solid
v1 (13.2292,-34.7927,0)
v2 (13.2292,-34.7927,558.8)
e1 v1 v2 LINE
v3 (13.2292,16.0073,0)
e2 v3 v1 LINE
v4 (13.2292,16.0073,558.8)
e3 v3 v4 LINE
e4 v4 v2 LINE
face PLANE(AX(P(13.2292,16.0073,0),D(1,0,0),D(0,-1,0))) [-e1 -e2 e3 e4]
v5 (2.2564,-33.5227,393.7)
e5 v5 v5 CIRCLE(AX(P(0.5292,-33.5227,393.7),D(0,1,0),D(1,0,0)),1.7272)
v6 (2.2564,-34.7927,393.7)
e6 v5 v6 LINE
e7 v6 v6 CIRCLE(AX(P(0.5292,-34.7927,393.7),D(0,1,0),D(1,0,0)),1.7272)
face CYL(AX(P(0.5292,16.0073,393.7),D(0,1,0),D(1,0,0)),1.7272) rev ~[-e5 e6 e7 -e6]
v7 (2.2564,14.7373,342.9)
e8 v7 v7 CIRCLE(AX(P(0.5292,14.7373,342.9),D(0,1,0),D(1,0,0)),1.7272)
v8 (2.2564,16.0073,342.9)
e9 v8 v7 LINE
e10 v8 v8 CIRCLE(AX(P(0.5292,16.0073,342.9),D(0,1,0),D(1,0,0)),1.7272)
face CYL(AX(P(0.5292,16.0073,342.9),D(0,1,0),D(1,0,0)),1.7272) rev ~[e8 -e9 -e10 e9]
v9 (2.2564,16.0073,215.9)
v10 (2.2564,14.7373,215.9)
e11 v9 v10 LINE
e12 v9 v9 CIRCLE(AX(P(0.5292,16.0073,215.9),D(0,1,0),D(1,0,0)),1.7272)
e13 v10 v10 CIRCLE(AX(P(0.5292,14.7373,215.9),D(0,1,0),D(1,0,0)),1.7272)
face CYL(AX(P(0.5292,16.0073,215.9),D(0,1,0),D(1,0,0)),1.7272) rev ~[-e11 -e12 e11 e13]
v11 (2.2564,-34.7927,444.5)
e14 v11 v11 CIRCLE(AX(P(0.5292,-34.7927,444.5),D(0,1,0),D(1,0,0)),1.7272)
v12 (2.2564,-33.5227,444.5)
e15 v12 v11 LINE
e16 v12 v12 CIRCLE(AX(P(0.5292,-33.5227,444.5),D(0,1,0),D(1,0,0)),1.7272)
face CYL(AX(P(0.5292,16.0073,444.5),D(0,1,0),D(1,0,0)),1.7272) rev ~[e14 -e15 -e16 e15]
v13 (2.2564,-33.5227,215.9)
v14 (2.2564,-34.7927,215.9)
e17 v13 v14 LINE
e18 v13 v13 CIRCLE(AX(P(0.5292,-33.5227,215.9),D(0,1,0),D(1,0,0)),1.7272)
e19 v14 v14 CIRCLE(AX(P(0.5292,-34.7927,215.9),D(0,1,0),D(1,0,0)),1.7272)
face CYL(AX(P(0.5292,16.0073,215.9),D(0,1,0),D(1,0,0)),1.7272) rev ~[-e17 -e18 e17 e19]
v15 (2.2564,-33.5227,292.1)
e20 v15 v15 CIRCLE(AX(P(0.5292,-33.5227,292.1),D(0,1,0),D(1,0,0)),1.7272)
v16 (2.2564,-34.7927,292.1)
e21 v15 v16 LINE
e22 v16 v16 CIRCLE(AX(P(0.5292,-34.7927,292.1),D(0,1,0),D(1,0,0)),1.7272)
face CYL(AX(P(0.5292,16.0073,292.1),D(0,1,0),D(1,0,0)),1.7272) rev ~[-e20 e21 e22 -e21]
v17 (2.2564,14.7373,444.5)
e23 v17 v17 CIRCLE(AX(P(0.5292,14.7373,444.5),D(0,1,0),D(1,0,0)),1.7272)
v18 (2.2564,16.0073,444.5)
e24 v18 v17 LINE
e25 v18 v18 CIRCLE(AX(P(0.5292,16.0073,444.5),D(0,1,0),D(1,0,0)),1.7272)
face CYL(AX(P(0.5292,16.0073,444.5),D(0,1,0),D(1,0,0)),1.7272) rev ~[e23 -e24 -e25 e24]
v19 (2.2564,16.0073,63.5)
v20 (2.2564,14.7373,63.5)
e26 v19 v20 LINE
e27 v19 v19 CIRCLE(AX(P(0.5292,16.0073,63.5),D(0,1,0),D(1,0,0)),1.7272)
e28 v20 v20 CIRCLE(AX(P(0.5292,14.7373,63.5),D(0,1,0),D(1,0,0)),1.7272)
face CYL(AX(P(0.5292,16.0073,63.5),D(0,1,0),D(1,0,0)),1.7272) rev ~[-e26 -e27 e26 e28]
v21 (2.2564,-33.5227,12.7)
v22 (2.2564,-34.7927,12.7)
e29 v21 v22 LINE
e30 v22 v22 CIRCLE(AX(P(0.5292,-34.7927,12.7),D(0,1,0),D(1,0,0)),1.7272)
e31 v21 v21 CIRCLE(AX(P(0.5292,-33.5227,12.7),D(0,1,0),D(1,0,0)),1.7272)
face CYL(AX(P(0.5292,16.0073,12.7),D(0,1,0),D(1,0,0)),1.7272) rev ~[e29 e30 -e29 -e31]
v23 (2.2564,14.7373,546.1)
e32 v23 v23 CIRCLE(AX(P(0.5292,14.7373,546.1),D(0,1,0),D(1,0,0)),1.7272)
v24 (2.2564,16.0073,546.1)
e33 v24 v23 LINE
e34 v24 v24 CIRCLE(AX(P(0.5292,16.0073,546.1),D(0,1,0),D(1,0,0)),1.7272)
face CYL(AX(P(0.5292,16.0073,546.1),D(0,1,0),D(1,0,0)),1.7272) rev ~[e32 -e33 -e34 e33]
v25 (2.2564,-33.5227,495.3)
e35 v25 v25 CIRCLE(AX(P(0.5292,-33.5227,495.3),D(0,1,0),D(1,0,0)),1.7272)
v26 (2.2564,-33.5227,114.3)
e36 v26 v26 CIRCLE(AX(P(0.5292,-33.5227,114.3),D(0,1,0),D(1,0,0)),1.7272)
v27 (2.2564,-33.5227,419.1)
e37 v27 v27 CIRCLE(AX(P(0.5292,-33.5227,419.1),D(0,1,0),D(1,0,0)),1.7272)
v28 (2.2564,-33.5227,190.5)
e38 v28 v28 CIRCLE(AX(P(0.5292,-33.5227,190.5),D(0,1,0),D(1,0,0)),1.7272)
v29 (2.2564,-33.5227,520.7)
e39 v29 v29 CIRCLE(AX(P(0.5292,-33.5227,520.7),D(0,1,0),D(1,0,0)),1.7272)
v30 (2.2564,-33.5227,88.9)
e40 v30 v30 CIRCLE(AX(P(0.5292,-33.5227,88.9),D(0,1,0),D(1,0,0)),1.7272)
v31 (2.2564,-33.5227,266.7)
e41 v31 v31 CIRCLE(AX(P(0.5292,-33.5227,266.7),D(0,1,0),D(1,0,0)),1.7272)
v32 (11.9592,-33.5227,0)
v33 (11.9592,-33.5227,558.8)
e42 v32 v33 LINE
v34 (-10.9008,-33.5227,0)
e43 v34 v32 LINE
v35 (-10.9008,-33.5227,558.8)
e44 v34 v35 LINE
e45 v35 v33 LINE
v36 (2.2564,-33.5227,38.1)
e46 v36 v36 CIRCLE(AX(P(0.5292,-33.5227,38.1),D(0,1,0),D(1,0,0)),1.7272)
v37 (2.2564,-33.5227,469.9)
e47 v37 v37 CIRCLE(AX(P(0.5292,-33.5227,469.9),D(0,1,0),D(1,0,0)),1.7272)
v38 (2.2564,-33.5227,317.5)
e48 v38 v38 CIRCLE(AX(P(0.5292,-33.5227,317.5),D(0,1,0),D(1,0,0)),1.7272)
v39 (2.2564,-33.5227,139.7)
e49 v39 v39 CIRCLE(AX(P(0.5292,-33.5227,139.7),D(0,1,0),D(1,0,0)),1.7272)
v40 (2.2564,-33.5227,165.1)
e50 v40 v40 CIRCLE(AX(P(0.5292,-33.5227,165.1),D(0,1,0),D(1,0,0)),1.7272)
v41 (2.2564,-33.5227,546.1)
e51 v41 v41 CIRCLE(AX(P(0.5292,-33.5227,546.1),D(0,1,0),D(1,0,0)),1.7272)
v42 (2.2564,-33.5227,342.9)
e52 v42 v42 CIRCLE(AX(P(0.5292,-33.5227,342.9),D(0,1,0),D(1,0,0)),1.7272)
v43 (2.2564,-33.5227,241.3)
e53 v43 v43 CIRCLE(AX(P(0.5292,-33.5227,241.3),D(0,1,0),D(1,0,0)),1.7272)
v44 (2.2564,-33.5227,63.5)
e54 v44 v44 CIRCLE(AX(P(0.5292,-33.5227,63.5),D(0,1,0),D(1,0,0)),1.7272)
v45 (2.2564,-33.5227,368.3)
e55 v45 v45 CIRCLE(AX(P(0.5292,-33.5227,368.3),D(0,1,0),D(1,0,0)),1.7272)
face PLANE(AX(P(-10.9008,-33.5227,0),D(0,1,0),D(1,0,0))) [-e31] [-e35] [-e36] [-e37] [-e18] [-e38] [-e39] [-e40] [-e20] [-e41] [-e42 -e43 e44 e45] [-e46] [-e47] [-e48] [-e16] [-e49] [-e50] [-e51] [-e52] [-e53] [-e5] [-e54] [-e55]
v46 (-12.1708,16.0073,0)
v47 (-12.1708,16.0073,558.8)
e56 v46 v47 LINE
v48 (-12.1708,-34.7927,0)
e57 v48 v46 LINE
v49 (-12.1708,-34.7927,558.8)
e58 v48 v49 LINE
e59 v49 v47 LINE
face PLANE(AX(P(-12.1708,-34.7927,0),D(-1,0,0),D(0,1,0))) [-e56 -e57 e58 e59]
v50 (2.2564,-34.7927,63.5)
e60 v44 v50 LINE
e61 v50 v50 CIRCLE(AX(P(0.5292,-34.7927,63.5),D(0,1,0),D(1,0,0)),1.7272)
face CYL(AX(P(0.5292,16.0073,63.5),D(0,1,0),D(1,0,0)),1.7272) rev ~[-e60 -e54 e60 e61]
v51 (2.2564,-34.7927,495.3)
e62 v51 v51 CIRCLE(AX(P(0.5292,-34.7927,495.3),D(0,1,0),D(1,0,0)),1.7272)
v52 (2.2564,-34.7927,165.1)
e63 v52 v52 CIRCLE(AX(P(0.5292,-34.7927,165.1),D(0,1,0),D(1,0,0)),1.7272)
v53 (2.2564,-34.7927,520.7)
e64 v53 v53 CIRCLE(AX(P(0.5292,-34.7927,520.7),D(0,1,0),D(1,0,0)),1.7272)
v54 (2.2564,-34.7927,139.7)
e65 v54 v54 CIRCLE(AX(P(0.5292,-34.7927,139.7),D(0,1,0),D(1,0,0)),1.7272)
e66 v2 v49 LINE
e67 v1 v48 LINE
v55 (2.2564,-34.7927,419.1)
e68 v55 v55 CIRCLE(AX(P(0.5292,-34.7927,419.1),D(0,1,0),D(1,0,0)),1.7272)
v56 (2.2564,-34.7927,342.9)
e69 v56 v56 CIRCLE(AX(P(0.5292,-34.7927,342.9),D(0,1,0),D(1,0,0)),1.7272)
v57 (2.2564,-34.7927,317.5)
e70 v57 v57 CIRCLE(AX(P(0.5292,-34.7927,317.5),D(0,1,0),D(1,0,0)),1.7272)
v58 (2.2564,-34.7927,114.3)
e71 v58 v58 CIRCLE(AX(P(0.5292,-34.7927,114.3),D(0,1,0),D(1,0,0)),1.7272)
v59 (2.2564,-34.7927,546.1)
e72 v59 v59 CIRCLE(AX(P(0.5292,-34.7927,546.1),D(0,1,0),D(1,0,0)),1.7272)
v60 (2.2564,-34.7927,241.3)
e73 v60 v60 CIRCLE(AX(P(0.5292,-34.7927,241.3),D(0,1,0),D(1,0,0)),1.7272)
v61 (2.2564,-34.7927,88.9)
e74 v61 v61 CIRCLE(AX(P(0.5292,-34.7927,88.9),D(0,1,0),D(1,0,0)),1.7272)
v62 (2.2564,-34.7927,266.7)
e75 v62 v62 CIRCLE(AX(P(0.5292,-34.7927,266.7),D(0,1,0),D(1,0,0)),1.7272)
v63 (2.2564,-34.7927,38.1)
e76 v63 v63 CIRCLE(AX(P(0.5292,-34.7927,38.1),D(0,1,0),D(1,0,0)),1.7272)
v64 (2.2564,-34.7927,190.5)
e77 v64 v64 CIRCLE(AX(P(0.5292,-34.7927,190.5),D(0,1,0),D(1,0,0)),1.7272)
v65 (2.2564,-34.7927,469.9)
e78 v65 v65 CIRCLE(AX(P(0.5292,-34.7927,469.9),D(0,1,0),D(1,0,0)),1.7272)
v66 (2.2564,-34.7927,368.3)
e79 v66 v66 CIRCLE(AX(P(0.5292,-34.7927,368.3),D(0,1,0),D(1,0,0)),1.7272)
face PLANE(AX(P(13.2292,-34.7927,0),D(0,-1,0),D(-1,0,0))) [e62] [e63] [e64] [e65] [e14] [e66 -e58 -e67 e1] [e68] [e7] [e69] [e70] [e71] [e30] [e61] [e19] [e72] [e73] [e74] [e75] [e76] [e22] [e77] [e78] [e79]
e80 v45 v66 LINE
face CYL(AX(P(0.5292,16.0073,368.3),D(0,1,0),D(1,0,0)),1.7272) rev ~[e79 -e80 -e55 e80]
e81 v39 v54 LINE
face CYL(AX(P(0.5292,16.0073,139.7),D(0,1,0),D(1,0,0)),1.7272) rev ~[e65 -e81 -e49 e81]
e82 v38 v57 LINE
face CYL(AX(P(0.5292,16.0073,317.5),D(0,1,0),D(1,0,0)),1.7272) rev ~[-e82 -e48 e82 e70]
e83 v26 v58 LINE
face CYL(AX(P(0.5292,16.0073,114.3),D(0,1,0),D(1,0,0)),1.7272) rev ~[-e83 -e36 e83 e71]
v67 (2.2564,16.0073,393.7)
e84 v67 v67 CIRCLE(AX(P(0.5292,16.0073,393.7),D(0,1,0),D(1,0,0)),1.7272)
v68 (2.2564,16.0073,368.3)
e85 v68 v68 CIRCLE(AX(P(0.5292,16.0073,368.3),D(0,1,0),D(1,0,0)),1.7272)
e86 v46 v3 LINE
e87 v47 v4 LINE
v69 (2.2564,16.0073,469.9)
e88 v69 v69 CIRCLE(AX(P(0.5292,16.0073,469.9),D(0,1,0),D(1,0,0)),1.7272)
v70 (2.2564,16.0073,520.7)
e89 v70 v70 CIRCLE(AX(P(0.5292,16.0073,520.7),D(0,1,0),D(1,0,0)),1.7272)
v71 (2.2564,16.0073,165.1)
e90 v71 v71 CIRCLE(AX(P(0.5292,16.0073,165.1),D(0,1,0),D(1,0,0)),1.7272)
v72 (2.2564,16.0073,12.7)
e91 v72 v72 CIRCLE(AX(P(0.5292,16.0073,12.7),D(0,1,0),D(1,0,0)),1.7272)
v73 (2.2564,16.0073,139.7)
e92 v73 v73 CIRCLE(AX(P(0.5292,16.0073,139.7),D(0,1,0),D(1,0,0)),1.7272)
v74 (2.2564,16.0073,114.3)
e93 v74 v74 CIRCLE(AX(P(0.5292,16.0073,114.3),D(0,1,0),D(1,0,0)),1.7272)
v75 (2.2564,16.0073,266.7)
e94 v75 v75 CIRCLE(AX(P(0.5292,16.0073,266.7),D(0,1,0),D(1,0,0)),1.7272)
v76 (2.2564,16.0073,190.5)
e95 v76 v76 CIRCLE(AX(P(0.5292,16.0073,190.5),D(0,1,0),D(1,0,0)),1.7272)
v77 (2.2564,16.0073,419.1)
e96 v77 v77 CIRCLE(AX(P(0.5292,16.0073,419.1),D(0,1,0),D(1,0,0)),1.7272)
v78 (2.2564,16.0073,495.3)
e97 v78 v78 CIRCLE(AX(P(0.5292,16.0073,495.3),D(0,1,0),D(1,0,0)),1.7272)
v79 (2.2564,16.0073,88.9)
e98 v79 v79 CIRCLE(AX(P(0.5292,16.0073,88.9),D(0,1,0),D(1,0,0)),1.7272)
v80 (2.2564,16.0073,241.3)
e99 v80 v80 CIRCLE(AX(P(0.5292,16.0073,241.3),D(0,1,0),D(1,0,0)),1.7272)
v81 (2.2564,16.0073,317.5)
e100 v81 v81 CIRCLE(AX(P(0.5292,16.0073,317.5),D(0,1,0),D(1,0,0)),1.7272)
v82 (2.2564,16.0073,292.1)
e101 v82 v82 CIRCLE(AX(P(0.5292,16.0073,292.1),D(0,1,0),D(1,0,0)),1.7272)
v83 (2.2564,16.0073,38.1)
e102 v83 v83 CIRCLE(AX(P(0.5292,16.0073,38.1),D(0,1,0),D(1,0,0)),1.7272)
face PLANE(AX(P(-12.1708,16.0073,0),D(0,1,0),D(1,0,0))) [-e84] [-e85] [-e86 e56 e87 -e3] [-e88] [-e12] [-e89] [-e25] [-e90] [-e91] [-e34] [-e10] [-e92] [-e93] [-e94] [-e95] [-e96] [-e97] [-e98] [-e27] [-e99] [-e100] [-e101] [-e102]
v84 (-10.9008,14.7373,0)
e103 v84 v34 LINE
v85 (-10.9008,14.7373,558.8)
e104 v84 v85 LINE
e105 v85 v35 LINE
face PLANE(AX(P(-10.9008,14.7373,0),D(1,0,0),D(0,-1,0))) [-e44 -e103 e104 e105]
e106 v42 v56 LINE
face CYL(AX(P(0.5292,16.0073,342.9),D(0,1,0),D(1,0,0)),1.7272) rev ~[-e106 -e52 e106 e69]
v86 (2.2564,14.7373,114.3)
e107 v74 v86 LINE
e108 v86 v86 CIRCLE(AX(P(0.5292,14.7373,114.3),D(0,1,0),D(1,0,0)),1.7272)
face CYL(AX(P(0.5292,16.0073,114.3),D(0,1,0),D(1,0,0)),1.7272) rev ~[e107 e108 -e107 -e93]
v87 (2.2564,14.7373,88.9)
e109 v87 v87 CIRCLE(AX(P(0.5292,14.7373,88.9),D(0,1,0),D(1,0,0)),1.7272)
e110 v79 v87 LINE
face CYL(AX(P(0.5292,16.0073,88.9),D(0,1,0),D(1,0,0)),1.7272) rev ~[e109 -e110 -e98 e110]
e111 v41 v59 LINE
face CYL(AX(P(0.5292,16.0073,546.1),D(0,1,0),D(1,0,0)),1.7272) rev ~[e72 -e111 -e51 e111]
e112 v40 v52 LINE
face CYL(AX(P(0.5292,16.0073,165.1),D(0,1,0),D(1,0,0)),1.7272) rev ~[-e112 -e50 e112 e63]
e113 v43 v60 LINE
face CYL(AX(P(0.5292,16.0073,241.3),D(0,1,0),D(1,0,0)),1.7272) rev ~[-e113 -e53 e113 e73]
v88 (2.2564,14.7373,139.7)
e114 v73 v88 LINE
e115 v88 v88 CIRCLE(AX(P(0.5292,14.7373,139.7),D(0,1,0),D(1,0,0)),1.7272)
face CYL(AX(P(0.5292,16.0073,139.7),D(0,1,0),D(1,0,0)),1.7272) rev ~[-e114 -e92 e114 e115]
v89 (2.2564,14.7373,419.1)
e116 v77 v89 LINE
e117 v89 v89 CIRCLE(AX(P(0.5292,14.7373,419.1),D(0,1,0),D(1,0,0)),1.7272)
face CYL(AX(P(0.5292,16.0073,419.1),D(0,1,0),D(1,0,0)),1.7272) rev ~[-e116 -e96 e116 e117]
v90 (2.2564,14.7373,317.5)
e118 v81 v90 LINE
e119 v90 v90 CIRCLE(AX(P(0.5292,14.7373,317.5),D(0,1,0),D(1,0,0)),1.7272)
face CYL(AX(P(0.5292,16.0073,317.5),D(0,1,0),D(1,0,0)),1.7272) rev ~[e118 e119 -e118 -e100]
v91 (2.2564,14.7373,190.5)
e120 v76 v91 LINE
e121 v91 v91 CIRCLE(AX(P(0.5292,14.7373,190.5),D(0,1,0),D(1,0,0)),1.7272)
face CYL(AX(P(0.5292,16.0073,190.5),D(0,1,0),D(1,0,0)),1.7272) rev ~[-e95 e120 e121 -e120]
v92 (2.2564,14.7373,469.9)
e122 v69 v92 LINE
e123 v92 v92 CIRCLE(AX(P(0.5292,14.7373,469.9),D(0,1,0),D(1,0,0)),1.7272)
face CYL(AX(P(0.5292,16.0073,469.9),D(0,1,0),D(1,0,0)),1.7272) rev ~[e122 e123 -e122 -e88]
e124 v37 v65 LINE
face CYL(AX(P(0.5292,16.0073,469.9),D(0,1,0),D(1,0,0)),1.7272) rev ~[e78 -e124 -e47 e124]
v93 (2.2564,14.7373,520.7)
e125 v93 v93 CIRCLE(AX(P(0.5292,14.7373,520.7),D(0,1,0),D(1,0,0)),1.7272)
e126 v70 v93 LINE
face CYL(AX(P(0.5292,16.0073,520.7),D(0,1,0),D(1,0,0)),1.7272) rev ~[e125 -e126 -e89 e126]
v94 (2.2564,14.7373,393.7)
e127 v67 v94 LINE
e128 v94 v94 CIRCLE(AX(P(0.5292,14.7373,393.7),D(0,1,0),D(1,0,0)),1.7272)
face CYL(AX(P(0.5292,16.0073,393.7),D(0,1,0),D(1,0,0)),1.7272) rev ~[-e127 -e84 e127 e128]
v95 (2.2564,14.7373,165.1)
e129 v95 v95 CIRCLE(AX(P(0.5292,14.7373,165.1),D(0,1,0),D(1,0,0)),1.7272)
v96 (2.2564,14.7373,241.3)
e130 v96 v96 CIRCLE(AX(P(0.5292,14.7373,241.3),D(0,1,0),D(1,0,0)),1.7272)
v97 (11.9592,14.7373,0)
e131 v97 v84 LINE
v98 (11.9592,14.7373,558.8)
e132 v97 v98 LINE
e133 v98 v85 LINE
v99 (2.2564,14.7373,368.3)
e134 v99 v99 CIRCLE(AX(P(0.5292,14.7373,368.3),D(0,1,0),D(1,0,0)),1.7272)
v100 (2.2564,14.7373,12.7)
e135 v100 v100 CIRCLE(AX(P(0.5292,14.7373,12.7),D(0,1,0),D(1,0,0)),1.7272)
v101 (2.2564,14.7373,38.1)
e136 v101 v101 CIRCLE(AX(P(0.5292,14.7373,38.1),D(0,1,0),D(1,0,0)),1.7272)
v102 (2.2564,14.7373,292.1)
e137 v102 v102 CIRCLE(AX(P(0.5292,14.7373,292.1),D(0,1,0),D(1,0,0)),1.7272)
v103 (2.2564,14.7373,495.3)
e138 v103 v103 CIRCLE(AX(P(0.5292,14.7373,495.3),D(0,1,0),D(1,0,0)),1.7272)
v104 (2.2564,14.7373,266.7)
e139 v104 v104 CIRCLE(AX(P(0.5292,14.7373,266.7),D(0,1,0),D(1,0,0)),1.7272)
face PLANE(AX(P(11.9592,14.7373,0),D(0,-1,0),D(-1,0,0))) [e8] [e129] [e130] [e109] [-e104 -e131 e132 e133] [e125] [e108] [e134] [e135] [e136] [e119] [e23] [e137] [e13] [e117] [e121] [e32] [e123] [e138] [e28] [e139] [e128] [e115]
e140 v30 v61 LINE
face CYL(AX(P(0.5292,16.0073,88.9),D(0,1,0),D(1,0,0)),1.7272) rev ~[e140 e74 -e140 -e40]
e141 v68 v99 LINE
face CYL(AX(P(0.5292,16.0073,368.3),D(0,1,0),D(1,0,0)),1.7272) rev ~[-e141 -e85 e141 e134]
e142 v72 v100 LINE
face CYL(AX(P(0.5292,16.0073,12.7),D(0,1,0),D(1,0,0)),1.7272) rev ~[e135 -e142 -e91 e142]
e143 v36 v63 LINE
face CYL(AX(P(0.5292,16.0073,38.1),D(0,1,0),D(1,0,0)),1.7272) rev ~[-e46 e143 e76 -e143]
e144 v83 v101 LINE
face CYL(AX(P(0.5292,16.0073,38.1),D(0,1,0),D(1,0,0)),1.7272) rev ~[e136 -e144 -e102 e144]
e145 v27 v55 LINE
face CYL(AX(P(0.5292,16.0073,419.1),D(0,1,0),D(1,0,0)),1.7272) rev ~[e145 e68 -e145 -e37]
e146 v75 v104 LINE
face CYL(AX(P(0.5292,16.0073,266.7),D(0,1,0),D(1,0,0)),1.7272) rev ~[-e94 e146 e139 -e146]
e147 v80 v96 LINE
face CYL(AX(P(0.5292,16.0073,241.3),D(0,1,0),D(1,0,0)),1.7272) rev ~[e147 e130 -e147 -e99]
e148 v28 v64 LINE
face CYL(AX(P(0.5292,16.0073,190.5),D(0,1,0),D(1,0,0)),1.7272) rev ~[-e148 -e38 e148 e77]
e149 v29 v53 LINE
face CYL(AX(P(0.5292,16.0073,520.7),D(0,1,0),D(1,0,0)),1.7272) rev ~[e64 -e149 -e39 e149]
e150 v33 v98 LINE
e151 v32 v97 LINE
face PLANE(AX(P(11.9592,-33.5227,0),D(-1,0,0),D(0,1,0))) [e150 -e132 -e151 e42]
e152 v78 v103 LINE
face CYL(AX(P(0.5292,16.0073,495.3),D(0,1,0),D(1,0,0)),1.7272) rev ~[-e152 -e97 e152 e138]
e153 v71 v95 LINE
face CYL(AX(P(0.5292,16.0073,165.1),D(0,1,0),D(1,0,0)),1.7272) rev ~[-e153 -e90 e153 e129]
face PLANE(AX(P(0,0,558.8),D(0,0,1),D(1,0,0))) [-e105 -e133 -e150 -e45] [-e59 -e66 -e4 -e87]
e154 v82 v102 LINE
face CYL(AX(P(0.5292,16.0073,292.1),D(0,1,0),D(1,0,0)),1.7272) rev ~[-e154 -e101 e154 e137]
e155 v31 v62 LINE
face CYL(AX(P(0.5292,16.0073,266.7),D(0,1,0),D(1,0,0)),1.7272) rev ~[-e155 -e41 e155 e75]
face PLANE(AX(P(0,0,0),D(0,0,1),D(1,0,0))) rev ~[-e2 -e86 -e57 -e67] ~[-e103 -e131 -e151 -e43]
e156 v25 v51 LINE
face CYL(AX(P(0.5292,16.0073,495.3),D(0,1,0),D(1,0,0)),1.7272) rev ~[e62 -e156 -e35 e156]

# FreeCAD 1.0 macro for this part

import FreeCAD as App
import Part
import Sketcher

V = App.Vector
Q = App.Units.Quantity


def add_polygon(sketch, points):
    """Adds a closed chain of lines whose ends are joined by coincident constraints."""
    first, n = sketch.GeometryCount, len(points)
    for a, b in zip(points, points[1:] + points[:1]):
        sketch.addGeometry(Part.LineSegment(App.Vector(*a, 0), App.Vector(*b, 0)), False)
    for i in range(n):
        sketch.addConstraint(Sketcher.Constraint("Coincident", first + i, 2, first + (i + 1) % n, 1))

doc = App.newDocument("Part")
body = doc.addObject("PartDesign::Body", "Body")

# Sketch on XY plane
sketch1 = body.newObject("Sketcher::SketchObject", "Sketch")
sketch1.AttachmentSupport = (doc.getObject("XY_Plane"), [""])
sketch1.MapMode = "FlatFace"
add_polygon(sketch1, [(13.2292, 16.0073), (-12.1708, 16.0073), (-12.1708, -34.7927), (13.2292, -34.7927)])  # lines 0-3
add_polygon(sketch1, [(-10.9008, 14.7373), (11.9592, 14.7373), (11.9592, -33.5227), (-10.9008, -33.5227)])  # lines 4-7
sketch1.addConstraint(Sketcher.Constraint("Horizontal", 0))
sketch1.addConstraint(Sketcher.Constraint("Vertical", 1))
sketch1.addConstraint(Sketcher.Constraint("Horizontal", 2))
sketch1.addConstraint(Sketcher.Constraint("Vertical", 3))
sketch1.addConstraint(Sketcher.Constraint("Horizontal", 4))
sketch1.addConstraint(Sketcher.Constraint("Vertical", 5))
sketch1.addConstraint(Sketcher.Constraint("Horizontal", 6))
sketch1.addConstraint(Sketcher.Constraint("Vertical", 7))
sketch1.addConstraint(Sketcher.Constraint("DistanceX", 0, 2, 0, 1, Q("1 in")))
sketch1.addConstraint(Sketcher.Constraint("DistanceY", 1, 2, 1, 1, Q("2 in")))
sketch1.addConstraint(Sketcher.Constraint("DistanceX", 4, 2, 3, 2, Q("0.05 in")))
sketch1.addConstraint(Sketcher.Constraint("DistanceY", 4, 2, 3, 2, Q("0.05 in")))
sketch1.addConstraint(Sketcher.Constraint("DistanceY", 2, 2, 5, 2, Q("0.05 in")))
sketch1.addConstraint(Sketcher.Constraint("DistanceX", 1, 2, 6, 2, Q("0.05 in")))
sketch1.addConstraint(Sketcher.Constraint("DistanceY", -1, 1, 0, 2, Q("0.6302 in")))
sketch1.addConstraint(Sketcher.Constraint("DistanceX", 0, 2, -1, 1, 12.1708))
pad1 = body.newObject("PartDesign::Pad", "Pad")
pad1.Profile = sketch1
pad1.Length = Q("22 in")

# Sketch on XZ plane
sketch2 = body.newObject("Sketcher::SketchObject", "Sketch001")
sketch2.AttachmentSupport = (doc.getObject("XZ_Plane"), [""])
sketch2.MapMode = "FlatFace"
sketch2.AttachmentOffset = App.Placement(V(0, 0, -0.6302087 * 25.4), App.Rotation())
sketch2.addGeometry(Part.Circle(V(0.5292, 12.7, 0), V(0, 0, 1), 1.7272), False)
sketch2.addConstraint(Sketcher.Constraint("Diameter", 0, Q("0.136 in")))
sketch2.addConstraint(Sketcher.Constraint("DistanceY", -1, 1, 0, 3, Q("0.5 in")))
sketch2.addConstraint(Sketcher.Constraint("DistanceX", -1, 1, 0, 3, 0.5292))
pocket1 = body.newObject("PartDesign::Pocket", "Pocket")
pocket1.Profile = sketch2
pocket1.Type = "ThroughAll"
pocket1.Reversed = True
doc.recompute()

linearpattern = body.newObject("PartDesign::LinearPattern", "LinearPattern")
linearpattern.Originals = [pocket1]
linearpattern.Direction = (doc.getObject("Z_Axis"), [""])
linearpattern.Mode = "offset"
linearpattern.Offset = Q("1 in")
linearpattern.Occurrences = 22
body.Tip = linearpattern

doc.recompute()
